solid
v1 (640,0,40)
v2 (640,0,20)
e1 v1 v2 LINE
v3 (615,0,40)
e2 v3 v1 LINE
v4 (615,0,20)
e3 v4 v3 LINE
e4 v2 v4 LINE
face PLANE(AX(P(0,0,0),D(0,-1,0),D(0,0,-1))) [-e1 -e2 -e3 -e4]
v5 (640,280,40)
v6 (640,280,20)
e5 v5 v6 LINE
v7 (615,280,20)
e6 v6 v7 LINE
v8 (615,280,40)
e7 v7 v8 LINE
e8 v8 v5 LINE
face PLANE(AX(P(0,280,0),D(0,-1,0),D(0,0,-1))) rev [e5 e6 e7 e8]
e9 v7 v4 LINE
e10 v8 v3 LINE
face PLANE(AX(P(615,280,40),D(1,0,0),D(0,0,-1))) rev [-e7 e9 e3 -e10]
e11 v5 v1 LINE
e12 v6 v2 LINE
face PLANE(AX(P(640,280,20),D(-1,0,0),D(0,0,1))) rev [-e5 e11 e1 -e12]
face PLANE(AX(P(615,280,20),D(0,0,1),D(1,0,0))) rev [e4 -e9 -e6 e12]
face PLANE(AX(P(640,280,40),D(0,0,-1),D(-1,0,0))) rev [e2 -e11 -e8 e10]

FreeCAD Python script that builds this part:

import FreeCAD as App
import Part
import Sketcher


def add_polygon(sketch, points):
    """Adds a closed chain of lines whose ends are joined by coincident constraints."""
    first, n = sketch.GeometryCount, len(points)
    for a, b in zip(points, points[1:] + points[:1]):
        sketch.addGeometry(Part.LineSegment(App.Vector(*a, 0), App.Vector(*b, 0)), False)
    for i in range(n):
        sketch.addConstraint(Sketcher.Constraint("Coincident", first + i, 2, first + (i + 1) % n, 1))

doc = App.newDocument("Part")
body = doc.addObject("PartDesign::Body", "Body")

sketch1 = body.newObject("Sketcher::SketchObject", "Sketch")
sketch1.AttachmentSupport = (doc.getObject("XZ_Plane"), [""])
sketch1.MapMode = "FlatFace"
add_polygon(sketch1, [(615, 20), (615, 40), (640, 40), (640, 20)])
sketch1.addConstraint(Sketcher.Constraint("Vertical", 0))
sketch1.addConstraint(Sketcher.Constraint("Horizontal", 1))
sketch1.addConstraint(Sketcher.Constraint("Vertical", 2))
sketch1.addConstraint(Sketcher.Constraint("Horizontal", 3))
sketch1.addConstraint(Sketcher.Constraint("DistanceX", 1, 1, 1, 2, 25.0))
sketch1.addConstraint(Sketcher.Constraint("DistanceY", 0, 1, 0, 2, 20.0))
sketch1.addConstraint(Sketcher.Constraint("DistanceX", -1, 1, 0, 2, 615.0))
sketch1.addConstraint(Sketcher.Constraint("DistanceY", -1, 1, 0, 2, 40.0))
pad1 = body.newObject("PartDesign::Pad", "Pad")
pad1.Profile = sketch1
pad1.Length = 280
pad1.Reversed = True

doc.recompute()
